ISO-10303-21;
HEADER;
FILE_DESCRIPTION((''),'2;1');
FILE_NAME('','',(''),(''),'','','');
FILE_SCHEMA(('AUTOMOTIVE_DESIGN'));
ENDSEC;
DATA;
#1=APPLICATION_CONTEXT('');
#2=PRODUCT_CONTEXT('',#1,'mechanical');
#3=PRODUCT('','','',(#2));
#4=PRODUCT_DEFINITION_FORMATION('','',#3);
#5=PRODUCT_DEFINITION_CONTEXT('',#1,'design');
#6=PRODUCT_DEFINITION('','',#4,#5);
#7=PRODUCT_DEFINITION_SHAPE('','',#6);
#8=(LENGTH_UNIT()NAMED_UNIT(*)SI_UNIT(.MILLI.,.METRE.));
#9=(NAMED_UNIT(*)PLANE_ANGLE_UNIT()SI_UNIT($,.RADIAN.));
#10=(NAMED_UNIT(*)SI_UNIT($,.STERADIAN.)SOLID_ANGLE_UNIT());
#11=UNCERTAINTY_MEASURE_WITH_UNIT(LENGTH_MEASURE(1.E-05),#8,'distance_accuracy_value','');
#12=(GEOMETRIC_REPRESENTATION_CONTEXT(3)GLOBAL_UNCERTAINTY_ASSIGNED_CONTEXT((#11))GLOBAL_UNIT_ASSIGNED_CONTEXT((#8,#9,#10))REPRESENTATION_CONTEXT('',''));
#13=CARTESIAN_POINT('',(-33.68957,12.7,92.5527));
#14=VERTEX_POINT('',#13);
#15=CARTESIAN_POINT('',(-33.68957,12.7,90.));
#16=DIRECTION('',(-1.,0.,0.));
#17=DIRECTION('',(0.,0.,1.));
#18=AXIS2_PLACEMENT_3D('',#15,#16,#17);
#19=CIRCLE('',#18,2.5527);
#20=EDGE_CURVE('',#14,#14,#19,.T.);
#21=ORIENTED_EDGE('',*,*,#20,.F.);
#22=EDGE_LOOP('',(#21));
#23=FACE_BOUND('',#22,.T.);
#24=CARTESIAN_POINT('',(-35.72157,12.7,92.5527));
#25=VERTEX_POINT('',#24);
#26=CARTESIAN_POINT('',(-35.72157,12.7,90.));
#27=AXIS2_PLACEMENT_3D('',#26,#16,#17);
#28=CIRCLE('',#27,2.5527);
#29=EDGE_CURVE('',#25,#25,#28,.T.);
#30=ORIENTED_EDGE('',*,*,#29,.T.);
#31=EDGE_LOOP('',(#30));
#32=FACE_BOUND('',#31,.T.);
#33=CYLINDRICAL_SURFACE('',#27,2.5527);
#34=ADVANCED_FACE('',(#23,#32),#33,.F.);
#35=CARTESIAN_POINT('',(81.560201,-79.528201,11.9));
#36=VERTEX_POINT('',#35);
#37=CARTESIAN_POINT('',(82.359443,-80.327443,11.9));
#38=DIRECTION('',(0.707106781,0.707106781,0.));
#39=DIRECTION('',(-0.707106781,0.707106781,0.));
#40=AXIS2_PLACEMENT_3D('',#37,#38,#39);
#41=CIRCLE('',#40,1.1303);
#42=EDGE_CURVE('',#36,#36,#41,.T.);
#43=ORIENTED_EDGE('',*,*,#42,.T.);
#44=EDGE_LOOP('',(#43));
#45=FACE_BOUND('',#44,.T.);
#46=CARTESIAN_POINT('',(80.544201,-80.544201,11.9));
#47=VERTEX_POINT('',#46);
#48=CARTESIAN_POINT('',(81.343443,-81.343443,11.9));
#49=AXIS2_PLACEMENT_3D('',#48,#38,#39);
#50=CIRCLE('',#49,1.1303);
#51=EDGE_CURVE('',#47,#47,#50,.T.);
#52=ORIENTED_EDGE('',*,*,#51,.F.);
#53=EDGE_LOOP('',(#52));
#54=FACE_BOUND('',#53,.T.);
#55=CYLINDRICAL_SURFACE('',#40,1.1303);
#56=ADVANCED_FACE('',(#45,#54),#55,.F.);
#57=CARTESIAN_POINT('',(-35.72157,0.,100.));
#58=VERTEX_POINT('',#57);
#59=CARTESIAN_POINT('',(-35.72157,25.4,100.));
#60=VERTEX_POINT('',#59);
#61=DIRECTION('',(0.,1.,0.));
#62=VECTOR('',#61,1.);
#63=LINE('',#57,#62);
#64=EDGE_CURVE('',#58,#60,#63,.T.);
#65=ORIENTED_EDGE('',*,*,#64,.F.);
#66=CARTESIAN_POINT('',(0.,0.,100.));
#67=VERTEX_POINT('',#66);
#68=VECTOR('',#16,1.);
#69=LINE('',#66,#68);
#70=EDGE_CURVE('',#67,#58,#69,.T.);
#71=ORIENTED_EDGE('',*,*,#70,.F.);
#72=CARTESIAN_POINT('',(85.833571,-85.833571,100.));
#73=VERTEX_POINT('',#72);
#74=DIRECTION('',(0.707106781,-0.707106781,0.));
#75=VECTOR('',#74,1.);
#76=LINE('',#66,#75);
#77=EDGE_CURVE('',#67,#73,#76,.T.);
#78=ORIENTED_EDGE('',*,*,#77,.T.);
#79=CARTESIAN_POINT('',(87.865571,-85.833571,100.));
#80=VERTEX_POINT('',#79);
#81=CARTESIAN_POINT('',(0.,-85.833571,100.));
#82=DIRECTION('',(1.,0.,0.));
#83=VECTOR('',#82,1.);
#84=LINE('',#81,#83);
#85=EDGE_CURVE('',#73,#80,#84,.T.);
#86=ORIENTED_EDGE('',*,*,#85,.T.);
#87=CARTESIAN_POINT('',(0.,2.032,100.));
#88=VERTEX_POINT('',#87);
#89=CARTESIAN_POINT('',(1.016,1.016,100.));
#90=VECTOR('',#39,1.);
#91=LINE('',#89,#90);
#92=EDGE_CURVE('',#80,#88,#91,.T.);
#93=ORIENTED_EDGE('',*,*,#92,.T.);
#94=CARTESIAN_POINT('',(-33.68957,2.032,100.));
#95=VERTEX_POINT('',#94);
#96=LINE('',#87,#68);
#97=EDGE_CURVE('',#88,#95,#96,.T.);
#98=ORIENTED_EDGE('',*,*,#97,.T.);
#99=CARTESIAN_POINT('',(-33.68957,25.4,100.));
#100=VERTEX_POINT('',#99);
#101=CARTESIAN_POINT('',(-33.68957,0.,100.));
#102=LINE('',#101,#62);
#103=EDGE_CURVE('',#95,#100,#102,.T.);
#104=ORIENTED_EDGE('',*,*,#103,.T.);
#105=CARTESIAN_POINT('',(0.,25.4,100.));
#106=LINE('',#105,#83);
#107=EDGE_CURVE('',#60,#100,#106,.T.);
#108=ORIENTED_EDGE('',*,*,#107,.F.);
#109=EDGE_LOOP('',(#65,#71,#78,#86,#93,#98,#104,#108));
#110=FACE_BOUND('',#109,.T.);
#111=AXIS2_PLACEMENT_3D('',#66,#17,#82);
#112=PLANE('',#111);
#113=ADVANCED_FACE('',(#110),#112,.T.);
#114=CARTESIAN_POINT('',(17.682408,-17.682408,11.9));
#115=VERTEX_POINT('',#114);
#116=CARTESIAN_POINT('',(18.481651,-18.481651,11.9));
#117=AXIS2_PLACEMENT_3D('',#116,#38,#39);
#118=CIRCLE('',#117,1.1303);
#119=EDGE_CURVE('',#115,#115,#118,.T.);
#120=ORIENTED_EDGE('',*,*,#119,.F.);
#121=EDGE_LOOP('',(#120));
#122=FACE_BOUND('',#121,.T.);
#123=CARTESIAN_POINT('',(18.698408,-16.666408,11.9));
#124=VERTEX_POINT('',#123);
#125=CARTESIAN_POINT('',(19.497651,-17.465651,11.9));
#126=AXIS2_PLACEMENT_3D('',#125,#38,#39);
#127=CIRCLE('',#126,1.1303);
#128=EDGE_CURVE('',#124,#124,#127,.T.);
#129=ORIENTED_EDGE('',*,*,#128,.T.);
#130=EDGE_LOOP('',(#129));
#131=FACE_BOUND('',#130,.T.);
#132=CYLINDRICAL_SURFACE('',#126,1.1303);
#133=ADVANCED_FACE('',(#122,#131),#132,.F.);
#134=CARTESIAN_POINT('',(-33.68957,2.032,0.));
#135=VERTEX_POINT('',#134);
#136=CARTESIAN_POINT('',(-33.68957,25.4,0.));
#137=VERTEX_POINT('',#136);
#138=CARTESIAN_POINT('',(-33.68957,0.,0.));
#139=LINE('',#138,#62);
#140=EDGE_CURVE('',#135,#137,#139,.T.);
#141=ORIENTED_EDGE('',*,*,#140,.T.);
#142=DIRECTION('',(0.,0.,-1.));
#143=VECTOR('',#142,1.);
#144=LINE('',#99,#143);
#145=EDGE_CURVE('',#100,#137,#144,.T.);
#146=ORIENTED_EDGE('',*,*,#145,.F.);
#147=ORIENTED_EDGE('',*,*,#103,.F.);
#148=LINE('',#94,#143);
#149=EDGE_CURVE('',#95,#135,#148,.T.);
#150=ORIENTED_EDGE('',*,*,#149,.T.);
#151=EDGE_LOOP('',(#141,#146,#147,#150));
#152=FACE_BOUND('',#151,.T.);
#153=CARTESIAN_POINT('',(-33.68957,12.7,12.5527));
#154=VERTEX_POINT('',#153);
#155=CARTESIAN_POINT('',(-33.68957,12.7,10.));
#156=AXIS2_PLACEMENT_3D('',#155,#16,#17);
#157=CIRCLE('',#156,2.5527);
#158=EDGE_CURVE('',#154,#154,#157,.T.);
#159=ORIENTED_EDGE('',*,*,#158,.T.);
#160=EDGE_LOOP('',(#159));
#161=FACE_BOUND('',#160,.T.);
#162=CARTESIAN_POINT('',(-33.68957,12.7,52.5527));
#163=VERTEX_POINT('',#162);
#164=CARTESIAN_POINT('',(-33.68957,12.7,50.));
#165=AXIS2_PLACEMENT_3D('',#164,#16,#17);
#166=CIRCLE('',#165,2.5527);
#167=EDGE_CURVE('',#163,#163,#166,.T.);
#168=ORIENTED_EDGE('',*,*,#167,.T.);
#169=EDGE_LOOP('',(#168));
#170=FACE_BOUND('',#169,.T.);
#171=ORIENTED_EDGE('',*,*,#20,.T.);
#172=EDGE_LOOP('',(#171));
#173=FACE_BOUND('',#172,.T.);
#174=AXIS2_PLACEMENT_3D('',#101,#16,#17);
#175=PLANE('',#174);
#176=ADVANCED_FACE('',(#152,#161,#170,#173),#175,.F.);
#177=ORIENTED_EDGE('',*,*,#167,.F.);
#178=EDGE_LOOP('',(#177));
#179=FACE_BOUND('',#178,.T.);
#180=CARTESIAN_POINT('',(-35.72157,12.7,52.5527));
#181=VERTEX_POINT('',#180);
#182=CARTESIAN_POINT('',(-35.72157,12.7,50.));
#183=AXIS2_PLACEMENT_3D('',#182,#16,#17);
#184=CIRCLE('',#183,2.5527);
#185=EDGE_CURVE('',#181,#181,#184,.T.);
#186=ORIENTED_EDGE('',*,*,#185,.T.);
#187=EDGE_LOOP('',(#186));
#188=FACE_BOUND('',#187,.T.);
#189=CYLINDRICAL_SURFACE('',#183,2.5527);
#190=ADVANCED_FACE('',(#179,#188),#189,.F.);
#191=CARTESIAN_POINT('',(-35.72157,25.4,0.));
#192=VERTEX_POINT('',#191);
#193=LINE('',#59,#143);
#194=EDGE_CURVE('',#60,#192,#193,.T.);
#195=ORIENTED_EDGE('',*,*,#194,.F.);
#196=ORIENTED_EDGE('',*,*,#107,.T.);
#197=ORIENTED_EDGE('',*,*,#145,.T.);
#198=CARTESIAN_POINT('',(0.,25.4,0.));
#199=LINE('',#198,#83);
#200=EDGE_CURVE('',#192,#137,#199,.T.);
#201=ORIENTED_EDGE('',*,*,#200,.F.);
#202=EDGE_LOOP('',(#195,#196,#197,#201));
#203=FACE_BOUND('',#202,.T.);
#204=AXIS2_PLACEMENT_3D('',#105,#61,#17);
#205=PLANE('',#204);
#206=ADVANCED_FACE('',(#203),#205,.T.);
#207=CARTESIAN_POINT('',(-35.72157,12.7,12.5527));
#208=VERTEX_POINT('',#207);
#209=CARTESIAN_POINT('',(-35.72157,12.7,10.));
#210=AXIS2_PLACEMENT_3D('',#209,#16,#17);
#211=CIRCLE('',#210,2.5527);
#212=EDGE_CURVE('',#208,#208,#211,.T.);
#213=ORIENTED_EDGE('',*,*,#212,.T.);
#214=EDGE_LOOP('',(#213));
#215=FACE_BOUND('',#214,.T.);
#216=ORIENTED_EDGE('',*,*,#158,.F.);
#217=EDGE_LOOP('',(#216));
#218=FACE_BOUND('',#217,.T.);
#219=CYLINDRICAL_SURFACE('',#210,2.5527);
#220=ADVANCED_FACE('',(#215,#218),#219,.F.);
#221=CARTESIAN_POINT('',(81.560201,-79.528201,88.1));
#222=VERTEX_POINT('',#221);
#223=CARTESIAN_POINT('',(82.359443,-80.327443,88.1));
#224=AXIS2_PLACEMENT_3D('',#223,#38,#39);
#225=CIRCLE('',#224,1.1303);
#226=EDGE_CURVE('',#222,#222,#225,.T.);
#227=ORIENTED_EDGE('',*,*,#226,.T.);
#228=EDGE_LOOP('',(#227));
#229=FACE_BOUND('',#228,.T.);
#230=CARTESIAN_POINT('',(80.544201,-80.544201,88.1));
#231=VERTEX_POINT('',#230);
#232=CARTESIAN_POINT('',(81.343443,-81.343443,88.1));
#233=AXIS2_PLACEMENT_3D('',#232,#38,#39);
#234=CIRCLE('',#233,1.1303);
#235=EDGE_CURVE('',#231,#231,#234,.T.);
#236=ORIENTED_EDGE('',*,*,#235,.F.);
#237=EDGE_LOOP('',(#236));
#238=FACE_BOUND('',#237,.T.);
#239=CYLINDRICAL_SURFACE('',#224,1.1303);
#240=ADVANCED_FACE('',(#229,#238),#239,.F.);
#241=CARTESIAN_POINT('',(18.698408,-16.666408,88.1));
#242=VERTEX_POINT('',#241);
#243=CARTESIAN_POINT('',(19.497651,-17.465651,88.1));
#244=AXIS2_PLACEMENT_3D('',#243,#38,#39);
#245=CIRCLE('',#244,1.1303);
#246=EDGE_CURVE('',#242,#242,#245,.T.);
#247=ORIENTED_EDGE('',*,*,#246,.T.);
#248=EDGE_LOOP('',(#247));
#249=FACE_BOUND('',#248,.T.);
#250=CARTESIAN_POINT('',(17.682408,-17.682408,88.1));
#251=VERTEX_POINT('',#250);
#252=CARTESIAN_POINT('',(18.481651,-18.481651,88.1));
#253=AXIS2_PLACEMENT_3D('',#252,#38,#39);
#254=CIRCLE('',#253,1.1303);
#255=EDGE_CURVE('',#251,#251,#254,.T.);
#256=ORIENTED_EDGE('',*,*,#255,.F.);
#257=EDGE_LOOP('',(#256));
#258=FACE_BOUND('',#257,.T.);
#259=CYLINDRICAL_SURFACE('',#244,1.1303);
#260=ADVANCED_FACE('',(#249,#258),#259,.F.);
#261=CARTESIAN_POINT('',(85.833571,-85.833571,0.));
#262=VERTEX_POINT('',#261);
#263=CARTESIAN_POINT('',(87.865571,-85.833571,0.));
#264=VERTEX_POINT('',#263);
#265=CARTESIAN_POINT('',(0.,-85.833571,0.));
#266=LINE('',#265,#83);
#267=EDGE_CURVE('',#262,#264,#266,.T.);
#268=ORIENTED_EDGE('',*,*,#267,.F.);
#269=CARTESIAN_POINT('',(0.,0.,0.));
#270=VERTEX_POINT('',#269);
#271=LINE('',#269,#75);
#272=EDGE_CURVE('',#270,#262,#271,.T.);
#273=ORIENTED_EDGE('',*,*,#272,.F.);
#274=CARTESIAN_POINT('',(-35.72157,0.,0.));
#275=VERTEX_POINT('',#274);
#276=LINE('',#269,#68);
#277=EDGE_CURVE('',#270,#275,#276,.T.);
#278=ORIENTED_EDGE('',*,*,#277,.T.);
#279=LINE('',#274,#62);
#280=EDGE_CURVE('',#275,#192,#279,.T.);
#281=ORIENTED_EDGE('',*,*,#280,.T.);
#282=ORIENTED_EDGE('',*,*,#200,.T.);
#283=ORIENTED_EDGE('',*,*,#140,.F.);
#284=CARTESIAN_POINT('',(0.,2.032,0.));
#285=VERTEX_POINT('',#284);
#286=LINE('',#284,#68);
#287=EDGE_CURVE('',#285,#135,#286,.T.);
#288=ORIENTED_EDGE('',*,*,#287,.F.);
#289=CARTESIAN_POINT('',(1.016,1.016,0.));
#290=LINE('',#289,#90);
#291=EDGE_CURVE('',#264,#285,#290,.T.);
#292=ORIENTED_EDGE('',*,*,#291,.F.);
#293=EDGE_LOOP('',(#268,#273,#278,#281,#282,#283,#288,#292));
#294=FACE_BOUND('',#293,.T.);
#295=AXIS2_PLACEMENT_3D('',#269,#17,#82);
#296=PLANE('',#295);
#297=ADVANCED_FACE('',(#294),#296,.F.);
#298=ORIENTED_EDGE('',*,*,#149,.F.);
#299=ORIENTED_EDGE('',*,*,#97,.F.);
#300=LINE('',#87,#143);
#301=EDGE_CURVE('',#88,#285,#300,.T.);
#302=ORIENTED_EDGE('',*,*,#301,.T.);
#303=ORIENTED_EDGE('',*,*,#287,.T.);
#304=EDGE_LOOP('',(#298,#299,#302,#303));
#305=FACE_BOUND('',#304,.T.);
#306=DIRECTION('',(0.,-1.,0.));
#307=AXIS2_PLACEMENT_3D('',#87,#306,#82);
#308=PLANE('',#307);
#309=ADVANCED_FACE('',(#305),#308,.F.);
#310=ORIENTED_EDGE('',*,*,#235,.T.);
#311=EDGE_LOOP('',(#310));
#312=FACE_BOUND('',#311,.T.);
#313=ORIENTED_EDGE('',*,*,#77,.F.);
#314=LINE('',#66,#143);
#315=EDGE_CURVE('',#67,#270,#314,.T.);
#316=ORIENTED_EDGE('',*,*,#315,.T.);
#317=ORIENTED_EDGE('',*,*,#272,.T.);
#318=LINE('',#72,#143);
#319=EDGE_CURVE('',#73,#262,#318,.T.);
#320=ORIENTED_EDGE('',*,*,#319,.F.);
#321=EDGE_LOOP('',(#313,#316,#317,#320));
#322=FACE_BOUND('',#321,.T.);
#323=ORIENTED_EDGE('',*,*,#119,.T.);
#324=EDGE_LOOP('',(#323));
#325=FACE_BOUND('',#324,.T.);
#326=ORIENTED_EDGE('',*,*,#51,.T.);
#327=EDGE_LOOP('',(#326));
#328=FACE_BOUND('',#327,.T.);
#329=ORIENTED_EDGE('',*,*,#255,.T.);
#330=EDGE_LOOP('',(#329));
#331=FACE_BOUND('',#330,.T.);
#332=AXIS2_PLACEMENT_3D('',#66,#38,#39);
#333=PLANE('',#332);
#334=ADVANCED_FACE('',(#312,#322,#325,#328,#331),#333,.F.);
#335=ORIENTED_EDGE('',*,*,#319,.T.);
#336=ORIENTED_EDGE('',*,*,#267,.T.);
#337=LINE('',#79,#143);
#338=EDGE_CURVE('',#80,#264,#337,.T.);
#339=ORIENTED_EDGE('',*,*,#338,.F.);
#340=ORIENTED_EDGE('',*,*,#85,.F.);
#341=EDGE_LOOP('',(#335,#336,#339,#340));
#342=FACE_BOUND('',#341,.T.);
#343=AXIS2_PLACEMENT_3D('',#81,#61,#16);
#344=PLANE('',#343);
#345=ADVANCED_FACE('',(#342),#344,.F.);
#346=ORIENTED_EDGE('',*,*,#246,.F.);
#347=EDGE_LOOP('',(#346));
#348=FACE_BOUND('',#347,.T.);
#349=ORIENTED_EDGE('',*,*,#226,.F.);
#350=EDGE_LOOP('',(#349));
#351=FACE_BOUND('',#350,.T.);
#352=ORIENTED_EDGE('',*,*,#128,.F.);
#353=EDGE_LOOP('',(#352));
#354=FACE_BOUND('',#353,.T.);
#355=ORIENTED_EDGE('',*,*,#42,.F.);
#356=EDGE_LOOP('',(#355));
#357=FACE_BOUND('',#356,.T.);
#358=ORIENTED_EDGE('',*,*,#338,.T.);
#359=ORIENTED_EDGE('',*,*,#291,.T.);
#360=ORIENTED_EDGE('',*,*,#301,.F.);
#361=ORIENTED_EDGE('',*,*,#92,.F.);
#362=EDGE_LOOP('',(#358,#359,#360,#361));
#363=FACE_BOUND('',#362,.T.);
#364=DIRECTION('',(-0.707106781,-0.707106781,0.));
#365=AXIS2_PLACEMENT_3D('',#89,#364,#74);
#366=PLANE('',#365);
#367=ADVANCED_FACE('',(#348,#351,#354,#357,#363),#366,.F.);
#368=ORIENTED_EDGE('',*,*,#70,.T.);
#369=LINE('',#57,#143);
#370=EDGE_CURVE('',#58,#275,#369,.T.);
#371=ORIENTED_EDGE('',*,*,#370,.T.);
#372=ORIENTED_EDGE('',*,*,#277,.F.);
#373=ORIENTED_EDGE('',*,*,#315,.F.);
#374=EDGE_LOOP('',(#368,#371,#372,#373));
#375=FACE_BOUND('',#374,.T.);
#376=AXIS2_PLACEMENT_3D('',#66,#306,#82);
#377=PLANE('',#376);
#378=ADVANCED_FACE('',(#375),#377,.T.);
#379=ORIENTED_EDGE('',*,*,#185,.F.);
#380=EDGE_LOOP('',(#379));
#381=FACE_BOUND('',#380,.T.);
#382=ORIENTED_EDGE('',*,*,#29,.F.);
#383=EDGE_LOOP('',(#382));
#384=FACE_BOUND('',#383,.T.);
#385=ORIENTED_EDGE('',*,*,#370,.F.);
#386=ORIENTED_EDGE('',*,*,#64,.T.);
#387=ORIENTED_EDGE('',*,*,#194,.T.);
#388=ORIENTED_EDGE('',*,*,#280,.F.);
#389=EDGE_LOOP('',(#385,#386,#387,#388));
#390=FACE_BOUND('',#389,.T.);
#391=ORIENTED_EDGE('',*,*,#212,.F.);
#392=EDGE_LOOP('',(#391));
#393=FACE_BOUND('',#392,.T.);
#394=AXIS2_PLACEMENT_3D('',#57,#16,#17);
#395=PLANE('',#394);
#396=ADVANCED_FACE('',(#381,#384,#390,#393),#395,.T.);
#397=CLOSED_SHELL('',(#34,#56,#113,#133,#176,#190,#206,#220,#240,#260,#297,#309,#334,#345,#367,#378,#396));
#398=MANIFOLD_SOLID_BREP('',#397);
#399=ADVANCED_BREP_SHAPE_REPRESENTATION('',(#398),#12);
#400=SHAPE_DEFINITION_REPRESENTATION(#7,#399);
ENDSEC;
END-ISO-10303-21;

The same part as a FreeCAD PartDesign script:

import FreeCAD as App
import Part
import Sketcher

V = App.Vector
Q = App.Units.Quantity

doc = App.newDocument("Part")
params = doc.addObject("Spreadsheet::Sheet", "Params")
for row, (alias, value) in enumerate([
    ("sketch1_height", "1 in"),
    ("sketch1_width", "0.08 in"),
    ("pad1_length", "100 mm"),
    ("sketch3_diameter", "0.089 in"),
    ("hole_diameter", "0.089 in"),
    ("sketch4_diameter", "0.201 in"),
    ("hole2_diameter", "0.201 in"),
], start=1):
    params.set(f"A{row}", alias)
    params.set(f"B{row}", "=" + value)
    params.setAlias(f"B{row}", alias)

body = doc.addObject("PartDesign::Body", "Body")

# Sketch on XY plane
sketch1 = body.newObject("Sketcher::SketchObject", "Sketch")
sketch1.AttachmentSupport = (doc.getObject("XY_Plane"), [""])
sketch1.MapMode = "FlatFace"
sketch1.addGeometry([
    Part.LineSegment(V(87.9, -85.8, 0), V(0, 2, 0)),  # 0
    Part.LineSegment(V(0, 2, 0), V(-33.7, 2, 0)),  # 1
    Part.LineSegment(V(-33.7, 2, 0), V(-33.7, 25.4, 0)),  # 2
    Part.LineSegment(V(-33.7, 25.4, 0), V(-35.7, 25.4, 0)),  # 3
    Part.LineSegment(V(-35.7, 25.4, 0), V(-35.7, 0, 0)),  # 4
    Part.LineSegment(V(-35.7, 0, 0), V(0, 0, 0)),  # 5
    Part.LineSegment(V(0, 0, 0), V(85.8, -85.8, 0)),  # 6
    Part.LineSegment(V(85.8, -85.8, 0), V(87.9, -85.8, 0)),  # 7
], False)
sketch1.addConstraint([
    Sketcher.Constraint("Coincident", 0, 2, 1, 1),
    Sketcher.Constraint("Coincident", 1, 2, 2, 1),
    Sketcher.Constraint("Coincident", 2, 2, 3, 1),
    Sketcher.Constraint("Coincident", 3, 2, 4, 1),
    Sketcher.Constraint("Coincident", 4, 2, 5, 1),
    Sketcher.Constraint("Coincident", 5, 2, 6, 1),
    Sketcher.Constraint("Coincident", 6, 2, 7, 1),
    Sketcher.Constraint("Coincident", 7, 2, 0, 1),
    Sketcher.Constraint("Horizontal", 1),
    Sketcher.Constraint("Vertical", 2),
    Sketcher.Constraint("Horizontal", 3),
    Sketcher.Constraint("Vertical", 4),
    Sketcher.Constraint("Horizontal", 5),
    Sketcher.Constraint("Horizontal", 7),
    Sketcher.Constraint("Coincident", 5, 2, -1, 1),
    Sketcher.Constraint("PointOnObject", 0, 2, -2),
    Sketcher.Constraint("Parallel", 0, 6),
    Sketcher.Constraint("Equal", 3, 7),
    Sketcher.Constraint("DistanceY", 4, 2, 4, 1, Q("1 in")),
    Sketcher.Constraint("Angle", 0, Q("135 deg")),
    Sketcher.Constraint("DistanceX", 3, 2, 3, 1, Q("0.08 in")),
    Sketcher.Constraint("Distance", 6, Q("121.387 mm")),
    Sketcher.Constraint("DistanceX", 1, 2, 1, 1, Q("33.68957 mm")),
])
sketch1.setExpression("Constraints[18]", "Params.sketch1_height")
sketch1.setExpression("Constraints[20]", "Params.sketch1_width")
pad1 = body.newObject("PartDesign::Pad", "Pad")
pad1.Profile = sketch1
pad1.setExpression("Length", "Params.pad1_length")

# Sketch on an angled plane
sketch2 = body.newObject("Sketcher::SketchObject", "Sketch001")
sketch2.Placement = App.Placement(V(1.016, 1.016, 0), App.Rotation(V(0, 0, -1), V(-0.707106781, 0.707106781, 0), V(0.707106781, 0.707106781, 0), "ZXY"))
sketch2.addGeometry([
    Part.Circle(V(-88.1, -26.1, 0), V(0, 0, 1), 1.1),
    Part.Circle(V(-11.9, -26.1, 0), V(0, 0, 1), 1.1),
    Part.Circle(V(-11.9, -115, 0), V(0, 0, 1), 1.1),
    Part.Circle(V(-88.1, -115, 0), V(0, 0, 1), 1.1),
], False)
sketch2.addConstraint([
    Sketcher.Constraint("Equal", 0, 1),
    Sketcher.Constraint("Equal", 1, 2),
    Sketcher.Constraint("Equal", 2, 3),
    Sketcher.Constraint("Horizontal", 0, 3, 1, 3),
    Sketcher.Constraint("Horizontal", 2, 3, 3, 3),
    Sketcher.Constraint("Vertical", 1, 3, 2, 3),
    Sketcher.Constraint("Vertical", 0, 3, 3, 3),
    Sketcher.Constraint("DistanceX", 0, 3, 1, 3, Q("3 in")),
    Sketcher.Constraint("DistanceY", 2, 3, 1, 3, Q("3.5 in")),
    Sketcher.Constraint("Diameter", 0, Q("2.26 mm")),
    Sketcher.Constraint("DistanceX", 0, 3, -1, 1, Q("88.1 mm")),
    Sketcher.Constraint("DistanceY", 0, 3, -1, 1, Q("26.137001 mm")),
])
pocket1 = body.newObject("PartDesign::Pocket", "Pocket")
pocket1.Profile = sketch2
pocket1.Type = "ThroughAll"
pocket1.Midplane = True

# Sketch on an angled plane
sketch3 = body.newObject("Sketcher::SketchObject", "Sketch002")
sketch3.Placement = App.Placement(V(1.016, 1.016, 0), App.Rotation(V(0.707106781, -0.707106781, 0), V(0, 0, -0.999999999), V(0.707106781, 0.707106781, 0), "ZXY"))
sketch3.addGeometry([
    Part.Circle(V(26.1, -88.1, 0), V(0, 0, 1), 1.1),
    Part.Circle(V(26.1, -11.9, 0), V(0, 0, 1), 1.1),
    Part.Circle(V(115, -11.9, 0), V(0, 0, 1), 1.1),
    Part.Circle(V(115, -88.1, 0), V(0, 0, 1), 1.1),
], False)
sketch3.addConstraint([
    Sketcher.Constraint("Equal", 0, 1),
    Sketcher.Constraint("Equal", 1, 2),
    Sketcher.Constraint("Equal", 2, 3),
    Sketcher.Constraint("Horizontal", 1, 3, 2, 3),
    Sketcher.Constraint("Horizontal", 0, 3, 3, 3),
    Sketcher.Constraint("Vertical", 0, 3, 1, 3),
    Sketcher.Constraint("Vertical", 2, 3, 3, 3),
    Sketcher.Constraint("Diameter", 0, Q("0.089 in")),
    Sketcher.Constraint("DistanceY", 0, 3, 1, 3, Q("3 in")),
    Sketcher.Constraint("DistanceX", 1, 3, 2, 3, Q("3.5 in")),
    Sketcher.Constraint("DistanceX", -1, 1, 0, 3, Q("26.137001 mm")),
    Sketcher.Constraint("DistanceY", 0, 3, -1, 1, Q("88.1 mm")),
])
sketch3.setExpression("Constraints[7]", "Params.sketch3_diameter")
doc.recompute()
hole = body.newObject("PartDesign::Hole", "Hole")
hole.Profile = sketch3
hole.ThreadType = "None"
hole.setExpression("Diameter", "Params.hole_diameter")
hole.DepthType = "ThroughAll"

# Sketch on YZ plane
sketch4 = body.newObject("Sketcher::SketchObject", "Sketch003")
sketch4.AttachmentSupport = (doc.getObject("YZ_Plane"), [""])
sketch4.MapMode = "FlatFace"
sketch4.AttachmentOffset = App.Placement(V(0, 0, -35.72157), App.Rotation())
sketch4.addGeometry([
    Part.Circle(V(12.7, 10, 0), V(0, 0, 1), 2.6),
    Part.Circle(V(12.7, 50, 0), V(0, 0, 1), 2.6),
    Part.Circle(V(12.7, 90, 0), V(0, 0, 1), 2.6),
], False)
sketch4.addConstraint([
    Sketcher.Constraint("Equal", 0, 1),
    Sketcher.Constraint("Equal", 1, 2),
    Sketcher.Constraint("Vertical", 0, 3, 1, 3),
    Sketcher.Constraint("Vertical", 1, 3, 2, 3),
    Sketcher.Constraint("Diameter", 0, Q("0.201 in")),
    Sketcher.Constraint("DistanceX", -1, 1, 0, 3, Q("0.5 in")),
    Sketcher.Constraint("DistanceY", -1, 1, 0, 3, Q("10 mm")),
    Sketcher.Constraint("DistanceY", -1, 1, 1, 3, Q("50 mm")),
    Sketcher.Constraint("DistanceY", -1, 1, 2, 3, Q("90 mm")),
])
sketch4.setExpression("Constraints[4]", "Params.sketch4_diameter")
doc.recompute()
hole2 = body.newObject("PartDesign::Hole", "Hole001")
hole2.Profile = sketch4
hole2.ThreadType = "None"
hole2.setExpression("Diameter", "Params.hole2_diameter")
hole2.DepthType = "ThroughAll"
hole2.Reversed = True

doc.recompute()
